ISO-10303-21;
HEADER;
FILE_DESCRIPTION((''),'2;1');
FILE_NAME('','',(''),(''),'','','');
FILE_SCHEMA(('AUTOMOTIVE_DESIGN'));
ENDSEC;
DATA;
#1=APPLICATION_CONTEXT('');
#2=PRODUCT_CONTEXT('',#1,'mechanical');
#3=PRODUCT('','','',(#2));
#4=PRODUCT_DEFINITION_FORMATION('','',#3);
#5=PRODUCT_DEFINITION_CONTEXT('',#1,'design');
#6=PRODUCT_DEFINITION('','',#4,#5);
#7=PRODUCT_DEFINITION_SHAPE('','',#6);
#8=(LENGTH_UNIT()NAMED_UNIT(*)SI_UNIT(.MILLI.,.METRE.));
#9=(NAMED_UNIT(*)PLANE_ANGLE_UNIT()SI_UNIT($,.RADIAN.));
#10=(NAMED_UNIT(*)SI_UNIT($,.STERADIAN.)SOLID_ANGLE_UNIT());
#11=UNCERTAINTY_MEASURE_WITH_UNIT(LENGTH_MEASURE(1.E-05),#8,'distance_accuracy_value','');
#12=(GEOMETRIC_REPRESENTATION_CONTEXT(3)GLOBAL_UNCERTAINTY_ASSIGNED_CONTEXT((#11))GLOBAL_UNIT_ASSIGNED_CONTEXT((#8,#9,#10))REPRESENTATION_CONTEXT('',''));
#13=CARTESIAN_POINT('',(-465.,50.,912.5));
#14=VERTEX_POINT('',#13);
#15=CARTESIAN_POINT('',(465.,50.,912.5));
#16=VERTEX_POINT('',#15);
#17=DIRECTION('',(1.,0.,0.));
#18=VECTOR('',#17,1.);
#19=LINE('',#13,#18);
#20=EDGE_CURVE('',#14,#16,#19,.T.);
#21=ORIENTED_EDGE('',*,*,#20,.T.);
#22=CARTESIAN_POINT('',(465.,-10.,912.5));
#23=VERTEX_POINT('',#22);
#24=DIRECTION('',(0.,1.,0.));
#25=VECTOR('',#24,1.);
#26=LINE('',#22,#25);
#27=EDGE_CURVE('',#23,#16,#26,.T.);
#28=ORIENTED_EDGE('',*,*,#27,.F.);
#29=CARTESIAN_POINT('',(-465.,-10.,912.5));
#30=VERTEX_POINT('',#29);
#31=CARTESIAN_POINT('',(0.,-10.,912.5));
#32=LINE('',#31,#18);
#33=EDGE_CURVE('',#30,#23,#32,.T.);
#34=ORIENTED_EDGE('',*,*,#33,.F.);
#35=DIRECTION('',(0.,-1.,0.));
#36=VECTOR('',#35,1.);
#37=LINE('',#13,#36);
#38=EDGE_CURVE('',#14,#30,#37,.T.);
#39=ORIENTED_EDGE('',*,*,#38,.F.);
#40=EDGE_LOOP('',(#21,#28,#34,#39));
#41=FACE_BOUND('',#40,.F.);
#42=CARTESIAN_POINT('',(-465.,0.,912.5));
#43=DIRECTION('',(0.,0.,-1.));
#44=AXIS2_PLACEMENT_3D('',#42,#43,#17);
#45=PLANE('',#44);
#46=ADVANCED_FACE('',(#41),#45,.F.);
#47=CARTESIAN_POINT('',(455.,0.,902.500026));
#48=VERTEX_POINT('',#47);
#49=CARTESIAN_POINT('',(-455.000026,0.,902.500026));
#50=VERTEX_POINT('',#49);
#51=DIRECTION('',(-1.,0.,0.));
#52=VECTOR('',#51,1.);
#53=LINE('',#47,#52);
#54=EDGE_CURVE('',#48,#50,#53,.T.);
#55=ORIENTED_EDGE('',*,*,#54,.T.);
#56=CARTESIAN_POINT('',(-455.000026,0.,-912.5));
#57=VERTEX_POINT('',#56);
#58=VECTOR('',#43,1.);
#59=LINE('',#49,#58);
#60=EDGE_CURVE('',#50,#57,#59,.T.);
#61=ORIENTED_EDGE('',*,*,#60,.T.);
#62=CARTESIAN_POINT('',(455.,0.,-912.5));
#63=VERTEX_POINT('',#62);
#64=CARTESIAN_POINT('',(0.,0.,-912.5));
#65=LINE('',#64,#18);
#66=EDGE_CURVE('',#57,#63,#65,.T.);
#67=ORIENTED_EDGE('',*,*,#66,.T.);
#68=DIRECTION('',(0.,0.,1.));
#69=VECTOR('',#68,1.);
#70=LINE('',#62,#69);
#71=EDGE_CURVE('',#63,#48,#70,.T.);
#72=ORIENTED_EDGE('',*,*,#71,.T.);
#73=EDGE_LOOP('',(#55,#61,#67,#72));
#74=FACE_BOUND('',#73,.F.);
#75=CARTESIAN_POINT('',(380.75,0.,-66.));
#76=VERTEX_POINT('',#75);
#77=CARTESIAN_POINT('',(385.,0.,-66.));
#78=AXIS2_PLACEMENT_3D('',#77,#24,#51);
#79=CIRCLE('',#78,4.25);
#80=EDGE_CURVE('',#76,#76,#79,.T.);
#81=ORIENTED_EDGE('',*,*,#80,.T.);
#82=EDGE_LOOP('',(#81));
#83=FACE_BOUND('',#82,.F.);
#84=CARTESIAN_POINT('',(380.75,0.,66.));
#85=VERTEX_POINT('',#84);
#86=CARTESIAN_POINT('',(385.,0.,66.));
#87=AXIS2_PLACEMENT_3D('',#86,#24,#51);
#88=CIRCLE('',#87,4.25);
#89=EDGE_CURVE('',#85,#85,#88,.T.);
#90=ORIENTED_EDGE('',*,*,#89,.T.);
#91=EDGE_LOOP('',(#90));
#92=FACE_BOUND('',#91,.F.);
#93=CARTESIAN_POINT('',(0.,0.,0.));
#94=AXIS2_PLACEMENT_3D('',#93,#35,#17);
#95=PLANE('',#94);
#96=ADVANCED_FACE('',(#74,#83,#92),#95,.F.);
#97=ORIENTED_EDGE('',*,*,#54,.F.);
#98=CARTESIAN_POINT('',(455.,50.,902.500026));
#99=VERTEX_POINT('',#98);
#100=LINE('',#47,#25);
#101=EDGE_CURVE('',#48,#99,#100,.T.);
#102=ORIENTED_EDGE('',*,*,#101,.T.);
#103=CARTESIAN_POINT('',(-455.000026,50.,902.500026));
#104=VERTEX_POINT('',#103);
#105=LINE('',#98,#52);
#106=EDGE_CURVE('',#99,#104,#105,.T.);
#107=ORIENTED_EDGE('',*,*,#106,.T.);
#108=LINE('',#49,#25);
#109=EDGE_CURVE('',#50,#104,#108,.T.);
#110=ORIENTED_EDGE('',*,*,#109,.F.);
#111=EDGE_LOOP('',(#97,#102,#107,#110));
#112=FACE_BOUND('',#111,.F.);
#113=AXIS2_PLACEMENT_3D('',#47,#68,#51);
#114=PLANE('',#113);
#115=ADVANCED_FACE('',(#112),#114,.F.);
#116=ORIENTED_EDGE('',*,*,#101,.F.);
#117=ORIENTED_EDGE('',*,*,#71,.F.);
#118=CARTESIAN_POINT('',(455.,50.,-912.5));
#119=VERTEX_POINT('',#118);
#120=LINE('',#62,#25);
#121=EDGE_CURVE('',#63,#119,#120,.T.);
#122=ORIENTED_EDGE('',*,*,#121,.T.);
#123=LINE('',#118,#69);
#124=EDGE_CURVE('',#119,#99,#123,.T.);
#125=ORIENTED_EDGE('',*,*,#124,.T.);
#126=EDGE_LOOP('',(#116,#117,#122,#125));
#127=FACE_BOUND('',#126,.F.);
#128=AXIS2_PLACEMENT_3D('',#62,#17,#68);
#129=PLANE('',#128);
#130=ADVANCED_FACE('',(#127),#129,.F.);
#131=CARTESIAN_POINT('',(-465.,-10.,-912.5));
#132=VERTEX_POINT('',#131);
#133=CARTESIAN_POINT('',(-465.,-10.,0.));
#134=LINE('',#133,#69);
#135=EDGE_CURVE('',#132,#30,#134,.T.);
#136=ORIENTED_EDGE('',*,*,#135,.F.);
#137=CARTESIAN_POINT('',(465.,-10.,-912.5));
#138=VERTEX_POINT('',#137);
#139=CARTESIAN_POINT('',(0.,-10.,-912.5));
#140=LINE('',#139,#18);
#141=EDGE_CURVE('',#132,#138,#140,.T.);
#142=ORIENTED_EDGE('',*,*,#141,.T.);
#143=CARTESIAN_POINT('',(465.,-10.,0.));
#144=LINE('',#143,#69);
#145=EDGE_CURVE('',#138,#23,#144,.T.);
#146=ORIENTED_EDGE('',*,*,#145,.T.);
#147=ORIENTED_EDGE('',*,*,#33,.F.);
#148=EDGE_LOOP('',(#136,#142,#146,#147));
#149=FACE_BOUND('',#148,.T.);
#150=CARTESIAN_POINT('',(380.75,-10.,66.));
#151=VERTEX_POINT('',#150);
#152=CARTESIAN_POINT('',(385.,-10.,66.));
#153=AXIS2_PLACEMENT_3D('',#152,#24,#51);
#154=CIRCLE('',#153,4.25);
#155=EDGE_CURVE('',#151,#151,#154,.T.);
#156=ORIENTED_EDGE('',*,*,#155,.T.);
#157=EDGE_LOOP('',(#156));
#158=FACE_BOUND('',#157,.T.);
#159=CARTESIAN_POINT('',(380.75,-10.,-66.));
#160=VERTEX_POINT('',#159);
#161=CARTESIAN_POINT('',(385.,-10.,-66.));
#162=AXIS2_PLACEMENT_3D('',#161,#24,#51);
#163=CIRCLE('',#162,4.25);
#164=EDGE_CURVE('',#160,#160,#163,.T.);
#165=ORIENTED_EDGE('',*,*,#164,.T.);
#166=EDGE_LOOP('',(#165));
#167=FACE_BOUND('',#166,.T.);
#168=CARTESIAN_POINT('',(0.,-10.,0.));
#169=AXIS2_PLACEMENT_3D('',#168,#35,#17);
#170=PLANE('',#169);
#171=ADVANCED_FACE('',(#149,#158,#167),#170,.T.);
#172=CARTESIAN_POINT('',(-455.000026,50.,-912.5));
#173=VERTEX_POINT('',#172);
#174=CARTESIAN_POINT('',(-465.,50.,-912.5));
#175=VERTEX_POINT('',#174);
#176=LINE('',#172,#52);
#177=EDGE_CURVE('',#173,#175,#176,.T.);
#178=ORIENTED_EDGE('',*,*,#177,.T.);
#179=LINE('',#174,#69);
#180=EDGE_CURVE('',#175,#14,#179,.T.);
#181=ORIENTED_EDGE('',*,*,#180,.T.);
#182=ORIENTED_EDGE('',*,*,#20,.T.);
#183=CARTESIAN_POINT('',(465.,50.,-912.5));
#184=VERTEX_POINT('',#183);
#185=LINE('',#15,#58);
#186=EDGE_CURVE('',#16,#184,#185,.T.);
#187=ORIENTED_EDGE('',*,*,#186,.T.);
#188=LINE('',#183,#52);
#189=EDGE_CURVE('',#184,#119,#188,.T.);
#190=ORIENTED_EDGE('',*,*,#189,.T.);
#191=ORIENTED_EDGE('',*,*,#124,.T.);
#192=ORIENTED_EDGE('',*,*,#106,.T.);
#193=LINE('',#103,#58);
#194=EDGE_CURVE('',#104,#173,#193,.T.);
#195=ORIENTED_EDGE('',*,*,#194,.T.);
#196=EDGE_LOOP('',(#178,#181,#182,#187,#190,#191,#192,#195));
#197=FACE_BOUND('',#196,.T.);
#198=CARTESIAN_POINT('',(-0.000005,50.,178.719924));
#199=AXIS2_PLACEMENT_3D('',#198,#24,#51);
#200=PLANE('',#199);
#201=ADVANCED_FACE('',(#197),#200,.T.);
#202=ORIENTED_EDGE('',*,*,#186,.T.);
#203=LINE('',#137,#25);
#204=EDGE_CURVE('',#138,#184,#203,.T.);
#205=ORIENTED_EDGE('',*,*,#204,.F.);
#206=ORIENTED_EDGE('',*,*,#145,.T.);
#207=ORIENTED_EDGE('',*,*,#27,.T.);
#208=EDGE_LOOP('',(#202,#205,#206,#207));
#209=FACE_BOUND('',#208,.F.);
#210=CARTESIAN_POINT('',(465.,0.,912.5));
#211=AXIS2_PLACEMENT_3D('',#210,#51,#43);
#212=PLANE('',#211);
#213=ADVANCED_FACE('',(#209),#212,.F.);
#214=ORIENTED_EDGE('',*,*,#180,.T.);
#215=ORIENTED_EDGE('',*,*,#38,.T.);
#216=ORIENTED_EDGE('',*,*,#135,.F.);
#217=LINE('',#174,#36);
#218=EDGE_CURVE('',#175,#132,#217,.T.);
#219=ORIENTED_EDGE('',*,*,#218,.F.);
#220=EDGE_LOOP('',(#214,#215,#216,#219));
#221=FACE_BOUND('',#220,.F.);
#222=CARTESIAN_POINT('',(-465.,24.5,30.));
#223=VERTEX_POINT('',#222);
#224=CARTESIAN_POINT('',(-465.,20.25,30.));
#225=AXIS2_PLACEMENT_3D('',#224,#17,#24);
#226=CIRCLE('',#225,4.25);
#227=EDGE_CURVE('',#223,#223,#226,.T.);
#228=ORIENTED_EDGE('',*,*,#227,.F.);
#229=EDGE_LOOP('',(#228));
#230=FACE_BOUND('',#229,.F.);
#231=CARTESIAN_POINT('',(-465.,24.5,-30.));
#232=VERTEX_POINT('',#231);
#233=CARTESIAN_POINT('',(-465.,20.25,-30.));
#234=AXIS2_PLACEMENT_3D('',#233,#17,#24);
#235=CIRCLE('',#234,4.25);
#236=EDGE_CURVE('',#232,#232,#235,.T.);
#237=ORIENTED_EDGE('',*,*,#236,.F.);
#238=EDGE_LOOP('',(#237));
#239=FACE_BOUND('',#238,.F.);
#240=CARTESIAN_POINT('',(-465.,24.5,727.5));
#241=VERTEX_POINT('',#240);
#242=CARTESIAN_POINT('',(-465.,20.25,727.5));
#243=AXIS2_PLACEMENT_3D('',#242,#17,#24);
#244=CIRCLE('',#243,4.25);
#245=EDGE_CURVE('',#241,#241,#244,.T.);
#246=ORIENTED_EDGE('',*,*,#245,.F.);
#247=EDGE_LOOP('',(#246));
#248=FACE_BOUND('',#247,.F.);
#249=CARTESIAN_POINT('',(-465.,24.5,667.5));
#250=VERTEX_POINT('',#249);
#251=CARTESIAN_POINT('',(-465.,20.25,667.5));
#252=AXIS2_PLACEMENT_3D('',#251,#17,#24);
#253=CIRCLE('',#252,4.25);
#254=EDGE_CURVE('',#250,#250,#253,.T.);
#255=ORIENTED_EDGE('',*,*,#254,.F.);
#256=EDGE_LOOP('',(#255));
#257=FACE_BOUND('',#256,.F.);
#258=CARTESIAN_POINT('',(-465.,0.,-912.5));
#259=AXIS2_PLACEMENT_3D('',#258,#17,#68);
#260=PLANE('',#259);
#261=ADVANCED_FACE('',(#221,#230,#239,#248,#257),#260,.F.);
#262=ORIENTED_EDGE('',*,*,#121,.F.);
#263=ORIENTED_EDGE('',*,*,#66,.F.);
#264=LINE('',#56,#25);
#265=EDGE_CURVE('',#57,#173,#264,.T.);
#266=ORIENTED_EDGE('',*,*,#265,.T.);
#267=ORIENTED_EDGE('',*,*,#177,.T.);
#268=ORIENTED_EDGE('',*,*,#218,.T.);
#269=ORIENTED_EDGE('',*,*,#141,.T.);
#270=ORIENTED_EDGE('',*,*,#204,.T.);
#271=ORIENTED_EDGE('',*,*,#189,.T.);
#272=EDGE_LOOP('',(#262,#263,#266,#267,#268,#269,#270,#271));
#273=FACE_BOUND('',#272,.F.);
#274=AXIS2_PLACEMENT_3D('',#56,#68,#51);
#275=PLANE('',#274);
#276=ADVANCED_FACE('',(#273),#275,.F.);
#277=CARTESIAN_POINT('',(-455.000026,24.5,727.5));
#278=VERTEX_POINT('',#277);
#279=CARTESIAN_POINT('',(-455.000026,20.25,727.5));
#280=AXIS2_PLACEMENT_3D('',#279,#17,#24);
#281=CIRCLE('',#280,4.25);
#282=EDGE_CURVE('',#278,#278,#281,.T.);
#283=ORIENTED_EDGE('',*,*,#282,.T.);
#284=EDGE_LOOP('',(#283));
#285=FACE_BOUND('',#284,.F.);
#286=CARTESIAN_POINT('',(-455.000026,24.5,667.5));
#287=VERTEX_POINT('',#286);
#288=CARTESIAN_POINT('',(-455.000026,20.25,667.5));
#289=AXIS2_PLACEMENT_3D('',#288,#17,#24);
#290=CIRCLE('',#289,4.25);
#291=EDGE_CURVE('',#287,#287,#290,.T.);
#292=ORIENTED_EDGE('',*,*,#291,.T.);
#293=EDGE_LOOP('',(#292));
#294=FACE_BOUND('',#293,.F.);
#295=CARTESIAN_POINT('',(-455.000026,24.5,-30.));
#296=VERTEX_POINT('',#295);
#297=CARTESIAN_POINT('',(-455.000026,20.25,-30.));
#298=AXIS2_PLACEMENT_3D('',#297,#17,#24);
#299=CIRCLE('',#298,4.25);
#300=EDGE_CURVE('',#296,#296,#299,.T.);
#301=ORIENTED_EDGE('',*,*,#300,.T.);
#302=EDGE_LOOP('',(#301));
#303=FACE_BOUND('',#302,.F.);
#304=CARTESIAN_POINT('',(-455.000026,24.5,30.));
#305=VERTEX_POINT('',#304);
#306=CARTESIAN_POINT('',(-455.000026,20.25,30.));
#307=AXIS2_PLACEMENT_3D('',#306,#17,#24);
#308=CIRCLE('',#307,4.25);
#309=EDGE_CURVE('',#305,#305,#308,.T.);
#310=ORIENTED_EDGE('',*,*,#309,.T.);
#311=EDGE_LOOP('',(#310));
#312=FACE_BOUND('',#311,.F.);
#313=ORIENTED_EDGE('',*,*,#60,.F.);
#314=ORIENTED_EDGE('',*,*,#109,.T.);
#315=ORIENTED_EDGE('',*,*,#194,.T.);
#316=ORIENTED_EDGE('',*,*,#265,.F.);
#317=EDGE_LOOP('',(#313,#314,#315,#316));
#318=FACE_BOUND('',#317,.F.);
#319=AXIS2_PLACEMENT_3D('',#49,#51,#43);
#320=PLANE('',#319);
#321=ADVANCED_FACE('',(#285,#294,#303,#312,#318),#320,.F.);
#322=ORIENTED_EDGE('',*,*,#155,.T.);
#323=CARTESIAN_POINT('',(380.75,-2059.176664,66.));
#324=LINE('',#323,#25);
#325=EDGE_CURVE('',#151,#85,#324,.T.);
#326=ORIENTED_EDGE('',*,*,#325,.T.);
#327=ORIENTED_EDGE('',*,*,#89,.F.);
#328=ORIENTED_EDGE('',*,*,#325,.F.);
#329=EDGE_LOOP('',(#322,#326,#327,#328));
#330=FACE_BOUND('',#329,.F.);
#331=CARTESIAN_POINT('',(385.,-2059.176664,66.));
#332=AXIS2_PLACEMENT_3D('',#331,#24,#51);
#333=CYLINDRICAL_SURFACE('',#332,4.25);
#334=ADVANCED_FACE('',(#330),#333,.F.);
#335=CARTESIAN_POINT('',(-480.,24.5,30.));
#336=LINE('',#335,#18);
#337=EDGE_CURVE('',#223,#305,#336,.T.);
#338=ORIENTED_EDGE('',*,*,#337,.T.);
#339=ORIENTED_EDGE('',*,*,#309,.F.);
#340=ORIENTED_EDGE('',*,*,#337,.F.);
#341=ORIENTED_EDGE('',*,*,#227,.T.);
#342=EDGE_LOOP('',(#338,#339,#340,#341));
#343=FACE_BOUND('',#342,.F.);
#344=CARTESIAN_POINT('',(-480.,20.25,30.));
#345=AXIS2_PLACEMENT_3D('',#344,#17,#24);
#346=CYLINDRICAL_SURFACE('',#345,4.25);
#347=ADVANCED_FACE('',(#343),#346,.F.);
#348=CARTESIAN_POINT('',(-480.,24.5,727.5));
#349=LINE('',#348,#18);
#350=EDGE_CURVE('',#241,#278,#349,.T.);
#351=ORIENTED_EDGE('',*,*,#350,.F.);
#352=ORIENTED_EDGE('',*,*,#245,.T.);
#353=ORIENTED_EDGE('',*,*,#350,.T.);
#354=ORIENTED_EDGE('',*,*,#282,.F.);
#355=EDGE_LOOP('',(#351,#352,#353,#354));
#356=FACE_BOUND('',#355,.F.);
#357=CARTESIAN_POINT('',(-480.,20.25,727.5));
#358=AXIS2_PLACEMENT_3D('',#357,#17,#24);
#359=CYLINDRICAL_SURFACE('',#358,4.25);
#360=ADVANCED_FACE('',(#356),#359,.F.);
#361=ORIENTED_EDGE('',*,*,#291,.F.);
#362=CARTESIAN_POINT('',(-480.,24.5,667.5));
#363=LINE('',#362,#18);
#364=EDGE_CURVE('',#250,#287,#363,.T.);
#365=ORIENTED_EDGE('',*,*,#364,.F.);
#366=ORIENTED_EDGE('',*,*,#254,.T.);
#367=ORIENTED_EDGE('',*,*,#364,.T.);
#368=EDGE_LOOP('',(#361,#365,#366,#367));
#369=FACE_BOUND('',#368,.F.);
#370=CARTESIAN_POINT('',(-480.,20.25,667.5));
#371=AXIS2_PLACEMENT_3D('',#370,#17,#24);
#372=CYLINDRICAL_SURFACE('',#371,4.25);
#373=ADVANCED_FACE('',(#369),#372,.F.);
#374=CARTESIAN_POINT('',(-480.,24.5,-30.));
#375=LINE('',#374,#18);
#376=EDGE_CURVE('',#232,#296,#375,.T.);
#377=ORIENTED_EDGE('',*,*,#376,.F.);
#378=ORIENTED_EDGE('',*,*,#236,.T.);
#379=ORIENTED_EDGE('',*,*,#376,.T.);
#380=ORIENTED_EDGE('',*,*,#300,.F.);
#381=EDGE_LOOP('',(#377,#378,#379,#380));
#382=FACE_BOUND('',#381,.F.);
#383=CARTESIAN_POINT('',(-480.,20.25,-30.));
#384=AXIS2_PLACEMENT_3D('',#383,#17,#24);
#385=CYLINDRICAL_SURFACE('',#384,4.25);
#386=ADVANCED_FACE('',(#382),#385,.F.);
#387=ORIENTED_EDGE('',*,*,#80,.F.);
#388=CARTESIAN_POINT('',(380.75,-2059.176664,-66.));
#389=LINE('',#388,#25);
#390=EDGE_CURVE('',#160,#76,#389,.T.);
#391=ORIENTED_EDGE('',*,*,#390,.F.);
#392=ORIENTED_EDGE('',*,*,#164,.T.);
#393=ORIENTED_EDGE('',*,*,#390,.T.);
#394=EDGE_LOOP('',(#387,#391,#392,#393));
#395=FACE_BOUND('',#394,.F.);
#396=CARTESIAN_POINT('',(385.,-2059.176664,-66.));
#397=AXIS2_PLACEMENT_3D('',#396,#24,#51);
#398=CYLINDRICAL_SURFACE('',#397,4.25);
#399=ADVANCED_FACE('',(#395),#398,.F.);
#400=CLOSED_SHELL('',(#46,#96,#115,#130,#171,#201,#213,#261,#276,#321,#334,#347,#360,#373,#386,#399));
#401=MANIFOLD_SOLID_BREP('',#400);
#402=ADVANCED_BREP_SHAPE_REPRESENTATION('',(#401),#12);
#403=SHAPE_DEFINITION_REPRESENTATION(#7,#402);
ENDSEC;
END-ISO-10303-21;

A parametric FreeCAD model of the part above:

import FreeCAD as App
import Part
import Sketcher
Q = App.Units.Quantity


def add_polygon(sketch, points):
    """Adds a closed chain of lines whose ends are joined by coincident constraints."""
    first, n = sketch.GeometryCount, len(points)
    for a, b in zip(points, points[1:] + points[:1]):
        sketch.addGeometry(Part.LineSegment(App.Vector(*a, 0), App.Vector(*b, 0)), False)
    for i in range(n):
        sketch.addConstraint(Sketcher.Constraint("Coincident", first + i, 2, first + (i + 1) % n, 1))

doc = App.newDocument("Part")
params = doc.addObject("Spreadsheet::Sheet", "Params")
for row, (alias, value) in enumerate([
    ("sketch1_width", "930 mm"),
    ("sketch1_height", "1825 mm"),
    ("pad1_length", "10 mm"),
    ("sketch2_width", "930 mm"),
    ("sketch2_width2", "10 mm"),
    ("sketch2_height", "1825 mm"),
    ("pad2_length", "50 mm"),
    ("sketch3_diameter", "8.5 mm"),
    ("hole_diameter", "8.5 mm"),
    ("sketch4_diameter", "8.5 mm"),
    ("hole2_diameter", "8.5 mm"),
    ("hole2_depth", "15 mm"),
], start=1):
    params.set(f"A{row}", alias)
    params.set(f"B{row}", "=" + value)
    params.setAlias(f"B{row}", alias)

body = doc.addObject("PartDesign::Body", "Body")

sketch1 = body.newObject("Sketcher::SketchObject", "Sketch")
sketch1.AttachmentSupport = (doc.getObject("XZ_Plane"), [""])
sketch1.MapMode = "FlatFace"
add_polygon(sketch1, [(-465, 912), (-465, -912), (465, -912), (465, 912)])
sketch1.addConstraint([
    Sketcher.Constraint("Vertical", 0),
    Sketcher.Constraint("Horizontal", 1),
    Sketcher.Constraint("Vertical", 2),
    Sketcher.Constraint("Horizontal", 3),
    Sketcher.Constraint("Symmetric", 0, 2, 2, 2, -1, 1),
    Sketcher.Constraint("DistanceX", 1, 1, 1, 2, Q("930 mm")),
    Sketcher.Constraint("DistanceY", 0, 2, 0, 1, Q("1825 mm")),
])
sketch1.setExpression("Constraints[9]", "Params.sketch1_width")
sketch1.setExpression("Constraints[10]", "Params.sketch1_height")
pad1 = body.newObject("PartDesign::Pad", "Pad")
pad1.Profile = sketch1
pad1.setExpression("Length", "Params.pad1_length")

sketch2 = body.newObject("Sketcher::SketchObject", "Sketch001")
sketch2.AttachmentSupport = (doc.getObject("XZ_Plane"), [""])
sketch2.MapMode = "FlatFace"
add_polygon(sketch2, [(-465, 912), (465, 912), (465, -912), (455, -912), (455, 903), (-455, 903), (-455, -912), (-465, -912)])
sketch2.addConstraint([
    Sketcher.Constraint("Horizontal", 0),
    Sketcher.Constraint("Vertical", 1),
    Sketcher.Constraint("Horizontal", 2),
    Sketcher.Constraint("Vertical", 3),
    Sketcher.Constraint("Horizontal", 4),
    Sketcher.Constraint("Vertical", 5),
    Sketcher.Constraint("Horizontal", 6),
    Sketcher.Constraint("Vertical", 7),
    Sketcher.Constraint("Symmetric", 0, 2, 6, 2, -1, 1),
    Sketcher.Constraint("Horizontal", 2, 2, 5, 2),
    Sketcher.Constraint("DistanceX", 0, 1, 0, 2, Q("930 mm")),
    Sketcher.Constraint("DistanceX", 2, 2, 2, 1, Q("10 mm")),
    Sketcher.Constraint("DistanceY", 1, 2, 1, 1, Q("1825 mm")),
    Sketcher.Constraint("DistanceX", 4, 2, 4, 1, Q("910.000026 mm")),
    Sketcher.Constraint("DistanceY", 3, 1, 3, 2, Q("1815.000026 mm")),
])
sketch2.setExpression("Constraints[18]", "Params.sketch2_width")
sketch2.setExpression("Constraints[19]", "Params.sketch2_width2")
sketch2.setExpression("Constraints[20]", "Params.sketch2_height")
pad2 = body.newObject("PartDesign::Pad", "Pad001")
pad2.Profile = sketch2
pad2.setExpression("Length", "Params.pad2_length")
pad2.Reversed = True

sketch3 = body.newObject("Sketcher::SketchObject", "Sketch002")
sketch3.AttachmentSupport = (doc.getObject("XZ_Plane"), [""])
sketch3.MapMode = "FlatFace"
sketch3.AttachmentOffset = App.Placement(App.Vector(0, 0, 10), App.Rotation())
sketch3.addGeometry([
    Part.Circle(App.Vector(385, 66, 0), App.Vector(0, 0, 1), 4.2),
    Part.Circle(App.Vector(385, -66, 0), App.Vector(0, 0, 1), 4.2),
], False)
sketch3.addConstraint([
    Sketcher.Constraint("Equal", 0, 1),
    Sketcher.Constraint("Symmetric", 0, 3, 1, 3, -1),
    Sketcher.Constraint("Diameter", 0, Q("8.5 mm")),
    Sketcher.Constraint("DistanceX", -1, 1, 0, 3, Q("385 mm")),
    Sketcher.Constraint("DistanceY", -1, 1, 0, 3, Q("66 mm")),
])
sketch3.setExpression("Constraints[2]", "Params.sketch3_diameter")
doc.recompute()
hole = body.newObject("PartDesign::Hole", "Hole")
hole.Profile = sketch3
hole.ThreadType = "None"
hole.setExpression("Diameter", "Params.hole_diameter")
hole.DepthType = "ThroughAll"

sketch4 = body.newObject("Sketcher::SketchObject", "Sketch003")
sketch4.AttachmentSupport = (doc.getObject("YZ_Plane"), [""])
sketch4.MapMode = "FlatFace"
sketch4.AttachmentOffset = App.Placement(App.Vector(0, 0, -465), App.Rotation())
sketch4.addGeometry([
    Part.Circle(App.Vector(20.2, 727.5, 0), App.Vector(0, 0, 1), 4.2),
    Part.Circle(App.Vector(20.2, 667.5, 0), App.Vector(0, 0, 1), 4.2),
    Part.Circle(App.Vector(20.2, 1157.5, 0), App.Vector(0, 0, 1), 4.2),
    Part.Circle(App.Vector(20.2, 1097.5, 0), App.Vector(0, 0, 1), 4.2),
    Part.Circle(App.Vector(20.2, 30, 0), App.Vector(0, 0, 1), 4.2),
    Part.Circle(App.Vector(20.2, -30, 0), App.Vector(0, 0, 1), 4.2),
], False)
sketch4.addConstraint([
    Sketcher.Constraint("Equal", 0, 1),
    Sketcher.Constraint("Equal", 1, 2),
    Sketcher.Constraint("Equal", 2, 3),
    Sketcher.Constraint("Equal", 3, 4),
    Sketcher.Constraint("Equal", 4, 5),
    Sketcher.Constraint("Symmetric", 4, 3, 5, 3, -1),
    Sketcher.Constraint("Vertical", 0, 3, 1, 3),
    Sketcher.Constraint("Vertical", 1, 3, 2, 3),
    Sketcher.Constraint("Vertical", 2, 3, 3, 3),
    Sketcher.Constraint("Vertical", 3, 3, 4, 3),
    Sketcher.Constraint("Diameter", 0, Q("8.5 mm")),
    Sketcher.Constraint("DistanceY", -1, 1, 4, 3, Q("30 mm")),
    Sketcher.Constraint("DistanceY", 1, 3, 0, 3, Q("60 mm")),
    Sketcher.Constraint("DistanceY", 0, 3, 2, 3, Q("430 mm")),
    Sketcher.Constraint("DistanceY", 3, 3, 2, 3, Q("60 mm")),
    Sketcher.Constraint("DistanceY", -1, 1, 0, 3, Q("727.5 mm")),
    Sketcher.Constraint("DistanceX", -1, 1, 0, 3, Q("20.25 mm")),
])
sketch4.setExpression("Constraints[10]", "Params.sketch4_diameter")
doc.recompute()
hole2 = body.newObject("PartDesign::Hole", "Hole001")
hole2.Profile = sketch4
hole2.ThreadType = "None"
hole2.setExpression("Diameter", "Params.hole2_diameter")
hole2.DepthType = "Dimension"
hole2.setExpression("Depth", "Params.hole2_depth")
hole2.DrillPoint = "Flat"
hole2.Reversed = True

doc.recompute()
